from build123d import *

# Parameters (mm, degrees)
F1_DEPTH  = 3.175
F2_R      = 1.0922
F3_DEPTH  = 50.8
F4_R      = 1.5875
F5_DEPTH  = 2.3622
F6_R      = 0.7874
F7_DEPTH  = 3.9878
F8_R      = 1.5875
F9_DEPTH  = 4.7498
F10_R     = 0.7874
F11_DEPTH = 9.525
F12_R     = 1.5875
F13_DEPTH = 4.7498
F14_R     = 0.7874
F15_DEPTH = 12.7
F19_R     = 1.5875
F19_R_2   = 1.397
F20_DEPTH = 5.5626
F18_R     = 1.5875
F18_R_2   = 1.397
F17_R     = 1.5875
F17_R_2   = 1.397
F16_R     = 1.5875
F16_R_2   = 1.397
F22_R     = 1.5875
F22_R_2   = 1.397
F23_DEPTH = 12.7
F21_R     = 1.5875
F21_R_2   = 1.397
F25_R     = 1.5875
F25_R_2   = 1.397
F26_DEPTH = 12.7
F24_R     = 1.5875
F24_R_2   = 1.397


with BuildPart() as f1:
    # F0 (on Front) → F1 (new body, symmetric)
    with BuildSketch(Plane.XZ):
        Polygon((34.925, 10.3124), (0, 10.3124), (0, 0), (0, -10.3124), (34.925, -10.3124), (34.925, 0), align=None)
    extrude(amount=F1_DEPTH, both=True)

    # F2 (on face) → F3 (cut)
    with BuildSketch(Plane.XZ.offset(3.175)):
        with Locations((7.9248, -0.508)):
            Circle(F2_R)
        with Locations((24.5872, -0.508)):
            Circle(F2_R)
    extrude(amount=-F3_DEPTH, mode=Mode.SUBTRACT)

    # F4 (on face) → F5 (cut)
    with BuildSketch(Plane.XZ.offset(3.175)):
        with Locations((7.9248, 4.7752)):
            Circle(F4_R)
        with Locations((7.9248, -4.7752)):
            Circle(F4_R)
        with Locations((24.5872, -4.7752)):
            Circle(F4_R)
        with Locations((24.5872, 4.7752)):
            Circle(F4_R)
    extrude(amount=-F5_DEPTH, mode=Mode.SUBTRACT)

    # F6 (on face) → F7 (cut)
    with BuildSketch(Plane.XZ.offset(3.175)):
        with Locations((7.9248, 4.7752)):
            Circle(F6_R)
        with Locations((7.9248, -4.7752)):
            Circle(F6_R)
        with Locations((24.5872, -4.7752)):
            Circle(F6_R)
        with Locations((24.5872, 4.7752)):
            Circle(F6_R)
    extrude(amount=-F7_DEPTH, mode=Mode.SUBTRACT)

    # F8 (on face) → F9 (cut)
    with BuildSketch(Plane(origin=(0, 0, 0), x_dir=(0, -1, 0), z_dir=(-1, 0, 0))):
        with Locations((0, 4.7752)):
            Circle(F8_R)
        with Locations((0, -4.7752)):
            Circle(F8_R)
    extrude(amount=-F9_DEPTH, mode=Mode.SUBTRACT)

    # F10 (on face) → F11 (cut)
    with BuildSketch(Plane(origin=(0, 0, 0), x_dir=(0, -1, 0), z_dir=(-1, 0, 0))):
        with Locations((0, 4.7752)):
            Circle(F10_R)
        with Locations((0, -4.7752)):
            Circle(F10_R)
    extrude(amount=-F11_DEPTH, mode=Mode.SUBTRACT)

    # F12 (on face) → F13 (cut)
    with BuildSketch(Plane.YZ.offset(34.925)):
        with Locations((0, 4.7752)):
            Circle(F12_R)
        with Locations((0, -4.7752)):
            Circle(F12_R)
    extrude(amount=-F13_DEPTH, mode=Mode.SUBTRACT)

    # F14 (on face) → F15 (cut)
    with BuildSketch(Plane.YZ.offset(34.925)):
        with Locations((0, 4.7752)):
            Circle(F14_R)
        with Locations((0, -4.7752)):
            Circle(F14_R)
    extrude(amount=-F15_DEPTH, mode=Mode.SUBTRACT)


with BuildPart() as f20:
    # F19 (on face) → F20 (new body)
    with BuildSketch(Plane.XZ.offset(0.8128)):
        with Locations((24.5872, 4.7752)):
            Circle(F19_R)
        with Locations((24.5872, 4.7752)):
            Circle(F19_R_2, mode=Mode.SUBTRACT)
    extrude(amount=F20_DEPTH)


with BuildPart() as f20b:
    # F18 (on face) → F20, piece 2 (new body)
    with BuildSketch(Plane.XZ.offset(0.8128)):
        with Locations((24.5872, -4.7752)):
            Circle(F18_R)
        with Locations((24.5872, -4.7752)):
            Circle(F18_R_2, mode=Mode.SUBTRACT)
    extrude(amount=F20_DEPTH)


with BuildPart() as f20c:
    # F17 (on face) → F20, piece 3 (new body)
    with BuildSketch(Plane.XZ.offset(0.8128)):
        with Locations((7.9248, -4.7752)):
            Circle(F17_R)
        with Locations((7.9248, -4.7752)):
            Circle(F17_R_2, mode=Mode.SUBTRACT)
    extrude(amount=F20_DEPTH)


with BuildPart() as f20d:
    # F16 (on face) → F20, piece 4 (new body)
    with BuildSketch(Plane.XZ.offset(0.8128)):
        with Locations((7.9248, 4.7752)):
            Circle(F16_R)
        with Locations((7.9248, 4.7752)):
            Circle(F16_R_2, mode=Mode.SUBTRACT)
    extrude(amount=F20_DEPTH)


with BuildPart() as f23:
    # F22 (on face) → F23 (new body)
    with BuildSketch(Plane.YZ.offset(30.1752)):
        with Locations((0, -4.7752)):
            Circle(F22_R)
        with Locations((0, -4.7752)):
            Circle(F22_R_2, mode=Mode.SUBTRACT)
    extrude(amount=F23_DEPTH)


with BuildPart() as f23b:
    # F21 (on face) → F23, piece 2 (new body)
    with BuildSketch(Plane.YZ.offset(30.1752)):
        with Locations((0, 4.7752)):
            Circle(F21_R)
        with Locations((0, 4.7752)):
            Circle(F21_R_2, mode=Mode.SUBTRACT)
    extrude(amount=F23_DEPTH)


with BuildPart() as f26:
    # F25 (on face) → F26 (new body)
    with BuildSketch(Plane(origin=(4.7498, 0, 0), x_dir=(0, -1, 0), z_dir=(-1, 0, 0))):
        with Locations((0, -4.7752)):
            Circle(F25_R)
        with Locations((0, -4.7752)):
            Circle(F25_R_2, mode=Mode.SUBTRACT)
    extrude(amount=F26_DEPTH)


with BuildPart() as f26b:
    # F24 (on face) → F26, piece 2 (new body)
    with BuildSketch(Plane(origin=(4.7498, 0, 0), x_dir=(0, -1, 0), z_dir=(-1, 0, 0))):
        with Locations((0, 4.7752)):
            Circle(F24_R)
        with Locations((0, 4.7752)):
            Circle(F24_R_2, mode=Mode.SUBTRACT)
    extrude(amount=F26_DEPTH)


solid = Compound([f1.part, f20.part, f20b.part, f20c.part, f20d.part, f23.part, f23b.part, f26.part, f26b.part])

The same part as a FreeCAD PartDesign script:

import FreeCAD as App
import Part
import Sketcher
from FreeCAD import Vector
Q = App.Units.Quantity


def add_polygon(sketch, points):
    """Adds a closed chain of lines whose ends are joined by coincident constraints."""
    first, n = sketch.GeometryCount, len(points)
    for a, b in zip(points, points[1:] + points[:1]):
        sketch.addGeometry(Part.LineSegment(App.Vector(*a, 0), App.Vector(*b, 0)), False)
    for i in range(n):
        sketch.addConstraint(Sketcher.Constraint("Coincident", first + i, 2, first + (i + 1) % n, 1))

doc = App.newDocument("Part")
body = doc.addObject("PartDesign::Body", "Body")

sketch1 = body.newObject("Sketcher::SketchObject", "Sketch")
sketch1.AttachmentSupport = (doc.getObject("XZ_Plane"), [""])
sketch1.MapMode = "FlatFace"
add_polygon(sketch1, [(34.925, 10.3124), (0, 10.3124), (0, -10.3124), (34.925, -10.3124)])
sketch1.addConstraint([
    Sketcher.Constraint("Horizontal", 0),
    Sketcher.Constraint("Vertical", 1),
    Sketcher.Constraint("Horizontal", 2),
    Sketcher.Constraint("Vertical", 3),
    Sketcher.Constraint("Symmetric", 0, 2, 1, 2, -1, 1),
    Sketcher.Constraint("DistanceX", 0, 2, 0, 1, Q("1.375 in")),
    Sketcher.Constraint("DistanceY", 1, 2, 1, 1, Q("0.812 in")),
])
pad1 = body.newObject("PartDesign::Pad", "Pad")
pad1.Profile = sketch1
pad1.Length = Q("0.25 in")
pad1.Midplane = True

sketch2 = body.newObject("Sketcher::SketchObject", "Sketch001")
sketch2.AttachmentSupport = (doc.getObject("XZ_Plane"), [""])
sketch2.MapMode = "FlatFace"
sketch2.AttachmentOffset = App.Placement(Vector(0, 0, 0.125 * 25.4), App.Rotation())
sketch2.addGeometry([
    Part.Circle(Vector(7.9248, -0.508, 0), Vector(0, 0, 1), 1.0922),
    Part.Circle(Vector(24.5872, -0.508, 0), Vector(0, 0, 1), 1.0922),
], False)
sketch2.addConstraint([
    Sketcher.Constraint("Equal", 0, 1),
    Sketcher.Constraint("Horizontal", 0, 3, 1, 3),
    Sketcher.Constraint("Diameter", 0, Q("0.086 in")),
    Sketcher.Constraint("DistanceY", 0, 3, -1, 1, Q("0.02 in")),
    Sketcher.Constraint("DistanceX", -1, 1, 0, 3, Q("0.312 in")),
    Sketcher.Constraint("DistanceX", -1, 1, 1, 3, Q("0.968 in")),
])
pocket1 = body.newObject("PartDesign::Pocket", "Pocket")
pocket1.Profile = sketch2
pocket1.Length = Q("2 in")

sketch3 = body.newObject("Sketcher::SketchObject", "Sketch002")
sketch3.AttachmentSupport = (doc.getObject("XZ_Plane"), [""])
sketch3.MapMode = "FlatFace"
sketch3.AttachmentOffset = App.Placement(Vector(0, 0, 0.125 * 25.4), App.Rotation())
sketch3.addGeometry([
    Part.Circle(Vector(7.9248, 4.7752, 0), Vector(0, 0, 1), 1.5875),
    Part.Circle(Vector(7.9248, -4.7752, 0), Vector(0, 0, 1), 1.5875),
    Part.Circle(Vector(24.5872, -4.7752, 0), Vector(0, 0, 1), 1.5875),
    Part.Circle(Vector(24.5872, 4.7752, 0), Vector(0, 0, 1), 1.5875),
], False)
sketch3.addConstraint([
    Sketcher.Constraint("Equal", 0, 1),
    Sketcher.Constraint("Equal", 1, 2),
    Sketcher.Constraint("Equal", 2, 3),
    Sketcher.Constraint("Symmetric", 0, 3, 1, 3, -1),
    Sketcher.Constraint("Symmetric", 2, 3, 3, 3, -1),
    Sketcher.Constraint("Horizontal", 1, 3, 2, 3),
    Sketcher.Constraint("Diameter", 0, Q("0.125 in")),
    Sketcher.Constraint("DistanceX", -1, 1, 0, 3, Q("0.312 in")),
    Sketcher.Constraint("DistanceY", -1, 1, 0, 3, Q("0.188 in")),
    Sketcher.Constraint("DistanceX", -1, 1, 2, 3, Q("0.968 in")),
])
pocket2 = body.newObject("PartDesign::Pocket", "Pocket001")
pocket2.Profile = sketch3
pocket2.Length = Q("0.093 in")

sketch4 = body.newObject("Sketcher::SketchObject", "Sketch003")
sketch4.AttachmentSupport = (doc.getObject("XZ_Plane"), [""])
sketch4.MapMode = "FlatFace"
sketch4.AttachmentOffset = App.Placement(Vector(0, 0, 0.125 * 25.4), App.Rotation())
sketch4.addGeometry([
    Part.Circle(Vector(7.9248, 4.7752, 0), Vector(0, 0, 1), 0.7874),
    Part.Circle(Vector(7.9248, -4.7752, 0), Vector(0, 0, 1), 0.7874),
    Part.Circle(Vector(24.5872, -4.7752, 0), Vector(0, 0, 1), 0.7874),
    Part.Circle(Vector(24.5872, 4.7752, 0), Vector(0, 0, 1), 0.7874),
], False)
sketch4.addConstraint([
    Sketcher.Constraint("Equal", 0, 1),
    Sketcher.Constraint("Equal", 1, 2),
    Sketcher.Constraint("Equal", 2, 3),
    Sketcher.Constraint("Symmetric", 0, 3, 1, 3, -1),
    Sketcher.Constraint("Symmetric", 2, 3, 3, 3, -1),
    Sketcher.Constraint("Horizontal", 1, 3, 2, 3),
    Sketcher.Constraint("Diameter", 0, Q("0.062 in")),
    Sketcher.Constraint("DistanceX", -1, 1, 0, 3, Q("0.312 in")),
    Sketcher.Constraint("DistanceY", -1, 1, 0, 3, Q("0.188 in")),
    Sketcher.Constraint("DistanceX", -1, 1, 2, 3, Q("0.968 in")),
])
pocket3 = body.newObject("PartDesign::Pocket", "Pocket002")
pocket3.Profile = sketch4
pocket3.Length = Q("0.157 in")

sketch5 = body.newObject("Sketcher::SketchObject", "Sketch004")
sketch5.AttachmentSupport = (doc.getObject("YZ_Plane"), [""])
sketch5.MapMode = "FlatFace"
sketch5.addGeometry([
    Part.Circle(Vector(0, 4.7752, 0), Vector(0, 0, 1), 1.5875),
    Part.Circle(Vector(0, -4.7752, 0), Vector(0, 0, 1), 1.5875),
], False)
sketch5.addConstraint([
    Sketcher.Constraint("Equal", 0, 1),
    Sketcher.Constraint("Symmetric", 0, 3, 1, 3, -1, 1),
    Sketcher.Constraint("PointOnObject", 0, 3, -2),
    Sketcher.Constraint("Diameter", 0, Q("0.125 in")),
    Sketcher.Constraint("DistanceY", -1, 1, 0, 3, Q("0.188 in")),
])
pocket4 = body.newObject("PartDesign::Pocket", "Pocket003")
pocket4.Profile = sketch5
pocket4.Length = Q("0.187 in")
pocket4.Reversed = True

sketch6 = body.newObject("Sketcher::SketchObject", "Sketch005")
sketch6.AttachmentSupport = (doc.getObject("YZ_Plane"), [""])
sketch6.MapMode = "FlatFace"
sketch6.addGeometry([
    Part.Circle(Vector(0, 4.7752, 0), Vector(0, 0, 1), 0.7874),
    Part.Circle(Vector(0, -4.7752, 0), Vector(0, 0, 1), 0.7874),
], False)
sketch6.addConstraint([
    Sketcher.Constraint("Equal", 0, 1),
    Sketcher.Constraint("Symmetric", 0, 3, 1, 3, -1, 1),
    Sketcher.Constraint("PointOnObject", 0, 3, -2),
    Sketcher.Constraint("Diameter", 0, Q("0.062 in")),
    Sketcher.Constraint("DistanceY", -1, 1, 0, 3, Q("0.188 in")),
])
pocket5 = body.newObject("PartDesign::Pocket", "Pocket004")
pocket5.Profile = sketch6
pocket5.Length = Q("0.375 in")
pocket5.Reversed = True

sketch7 = body.newObject("Sketcher::SketchObject", "Sketch006")
sketch7.AttachmentSupport = (doc.getObject("YZ_Plane"), [""])
sketch7.MapMode = "FlatFace"
sketch7.AttachmentOffset = App.Placement(Vector(0, 0, 1.375 * 25.4), App.Rotation())
sketch7.addGeometry([
    Part.Circle(Vector(0, 4.7752, 0), Vector(0, 0, 1), 1.5875),
    Part.Circle(Vector(0, -4.7752, 0), Vector(0, 0, 1), 1.5875),
], False)
sketch7.addConstraint([
    Sketcher.Constraint("Equal", 0, 1),
    Sketcher.Constraint("Symmetric", 0, 3, 1, 3, -1, 1),
    Sketcher.Constraint("PointOnObject", 0, 3, -2),
    Sketcher.Constraint("Diameter", 0, Q("0.125 in")),
    Sketcher.Constraint("DistanceY", -1, 1, 0, 3, Q("0.188 in")),
])
pocket6 = body.newObject("PartDesign::Pocket", "Pocket005")
pocket6.Profile = sketch7
pocket6.Length = Q("0.187 in")

sketch8 = body.newObject("Sketcher::SketchObject", "Sketch007")
sketch8.AttachmentSupport = (doc.getObject("YZ_Plane"), [""])
sketch8.MapMode = "FlatFace"
sketch8.AttachmentOffset = App.Placement(Vector(0, 0, 1.375 * 25.4), App.Rotation())
sketch8.addGeometry([
    Part.Circle(Vector(0, 4.7752, 0), Vector(0, 0, 1), 0.7874),
    Part.Circle(Vector(0, -4.7752, 0), Vector(0, 0, 1), 0.7874),
], False)
sketch8.addConstraint([
    Sketcher.Constraint("Equal", 0, 1),
    Sketcher.Constraint("Symmetric", 0, 3, 1, 3, -1, 1),
    Sketcher.Constraint("PointOnObject", 0, 3, -2),
    Sketcher.Constraint("Diameter", 0, Q("0.062 in")),
    Sketcher.Constraint("DistanceY", -1, 1, 0, 3, Q("0.188 in")),
])
pocket7 = body.newObject("PartDesign::Pocket", "Pocket006")
pocket7.Profile = sketch8
pocket7.Length = Q("0.5 in")
body2 = doc.addObject("PartDesign::Body", "Body001")

sketch9 = body2.newObject("Sketcher::SketchObject", "Sketch008")
sketch9.AttachmentSupport = (doc.getObject("XZ_Plane001"), [""])
sketch9.MapMode = "FlatFace"
sketch9.AttachmentOffset = App.Placement(Vector(0, 0, 0.032 * 25.4), App.Rotation())
sketch9.addGeometry([
    Part.Circle(Vector(24.5872, 4.7752, 0), Vector(0, 0, 1), 1.5875),
    Part.Circle(Vector(24.5872, 4.7752, 0), Vector(0, 0, 1), 1.397),
], False)
sketch9.addConstraint([
    Sketcher.Constraint("Coincident", 1, 3, 0, 3),
    Sketcher.Constraint("Diameter", 1, Q("0.11 in")),
    Sketcher.Constraint("Diameter", 0, Q("0.125 in")),
    Sketcher.Constraint("DistanceX", -1, 1, 0, 3, Q("0.968 in")),
    Sketcher.Constraint("DistanceY", -1, 1, 0, 3, Q("0.188 in")),
])
pad2 = body2.newObject("PartDesign::Pad", "Pad001")
pad2.Profile = sketch9
pad2.Length = Q("0.219 in")
body3 = doc.addObject("PartDesign::Body", "Body002")

sketch10 = body3.newObject("Sketcher::SketchObject", "Sketch009")
sketch10.AttachmentSupport = (doc.getObject("XZ_Plane002"), [""])
sketch10.MapMode = "FlatFace"
sketch10.AttachmentOffset = App.Placement(Vector(0, 0, 0.032 * 25.4), App.Rotation())
sketch10.addGeometry([
    Part.Circle(Vector(24.5872, -4.7752, 0), Vector(0, 0, 1), 1.5875),
    Part.Circle(Vector(24.5872, -4.7752, 0), Vector(0, 0, 1), 1.397),
], False)
sketch10.addConstraint([
    Sketcher.Constraint("Coincident", 1, 3, 0, 3),
    Sketcher.Constraint("Diameter", 1, Q("0.11 in")),
    Sketcher.Constraint("Diameter", 0, Q("0.125 in")),
    Sketcher.Constraint("DistanceX", -1, 1, 0, 3, Q("0.968 in")),
    Sketcher.Constraint("DistanceY", 0, 3, -1, 1, Q("0.188 in")),
])
pad3 = body3.newObject("PartDesign::Pad", "Pad002")
pad3.Profile = sketch10
pad3.Length = Q("0.219 in")
body4 = doc.addObject("PartDesign::Body", "Body003")

sketch11 = body4.newObject("Sketcher::SketchObject", "Sketch010")
sketch11.AttachmentSupport = (doc.getObject("XZ_Plane003"), [""])
sketch11.MapMode = "FlatFace"
sketch11.AttachmentOffset = App.Placement(Vector(0, 0, 0.032 * 25.4), App.Rotation())
sketch11.addGeometry([
    Part.Circle(Vector(7.9248, -4.7752, 0), Vector(0, 0, 1), 1.5875),
    Part.Circle(Vector(7.9248, -4.7752, 0), Vector(0, 0, 1), 1.397),
], False)
sketch11.addConstraint([
    Sketcher.Constraint("Coincident", 1, 3, 0, 3),
    Sketcher.Constraint("Diameter", 1, Q("0.11 in")),
    Sketcher.Constraint("Diameter", 0, Q("0.125 in")),
    Sketcher.Constraint("DistanceX", -1, 1, 0, 3, Q("0.312 in")),
    Sketcher.Constraint("DistanceY", 0, 3, -1, 1, Q("0.188 in")),
])
pad4 = body4.newObject("PartDesign::Pad", "Pad003")
pad4.Profile = sketch11
pad4.Length = Q("0.219 in")
body5 = doc.addObject("PartDesign::Body", "Body004")

sketch12 = body5.newObject("Sketcher::SketchObject", "Sketch011")
sketch12.AttachmentSupport = (doc.getObject("XZ_Plane004"), [""])
sketch12.MapMode = "FlatFace"
sketch12.AttachmentOffset = App.Placement(Vector(0, 0, 0.032 * 25.4), App.Rotation())
sketch12.addGeometry([
    Part.Circle(Vector(7.9248, 4.7752, 0), Vector(0, 0, 1), 1.5875),
    Part.Circle(Vector(7.9248, 4.7752, 0), Vector(0, 0, 1), 1.397),
], False)
sketch12.addConstraint([
    Sketcher.Constraint("Coincident", 1, 3, 0, 3),
    Sketcher.Constraint("Diameter", 1, Q("0.11 in")),
    Sketcher.Constraint("Diameter", 0, Q("0.125 in")),
    Sketcher.Constraint("DistanceX", -1, 1, 0, 3, Q("0.312 in")),
    Sketcher.Constraint("DistanceY", -1, 1, 0, 3, Q("0.188 in")),
])
pad5 = body5.newObject("PartDesign::Pad", "Pad004")
pad5.Profile = sketch12
pad5.Length = Q("0.219 in")
body6 = doc.addObject("PartDesign::Body", "Body005")

sketch13 = body6.newObject("Sketcher::SketchObject", "Sketch012")
sketch13.AttachmentSupport = (doc.getObject("YZ_Plane005"), [""])
sketch13.MapMode = "FlatFace"
sketch13.AttachmentOffset = App.Placement(Vector(0, 0, 1.188 * 25.4), App.Rotation())
sketch13.addGeometry([
    Part.Circle(Vector(0, -4.7752, 0), Vector(0, 0, 1), 1.5875),
    Part.Circle(Vector(0, -4.7752, 0), Vector(0, 0, 1), 1.397),
], False)
sketch13.addConstraint([
    Sketcher.Constraint("Coincident", 1, 3, 0, 3),
    Sketcher.Constraint("PointOnObject", 0, 3, -2),
    Sketcher.Constraint("Diameter", 1, Q("0.11 in")),
    Sketcher.Constraint("Diameter", 0, Q("0.125 in")),
    Sketcher.Constraint("DistanceY", 0, 3, -1, 1, Q("0.188 in")),
])
pad6 = body6.newObject("PartDesign::Pad", "Pad005")
pad6.Profile = sketch13
pad6.Length = Q("0.5 in")
body7 = doc.addObject("PartDesign::Body", "Body006")

sketch14 = body7.newObject("Sketcher::SketchObject", "Sketch013")
sketch14.AttachmentSupport = (doc.getObject("YZ_Plane006"), [""])
sketch14.MapMode = "FlatFace"
sketch14.AttachmentOffset = App.Placement(Vector(0, 0, 1.188 * 25.4), App.Rotation())
sketch14.addGeometry([
    Part.Circle(Vector(0, 4.7752, 0), Vector(0, 0, 1), 1.5875),
    Part.Circle(Vector(0, 4.7752, 0), Vector(0, 0, 1), 1.397),
], False)
sketch14.addConstraint([
    Sketcher.Constraint("Coincident", 1, 3, 0, 3),
    Sketcher.Constraint("PointOnObject", 0, 3, -2),
    Sketcher.Constraint("Diameter", 1, Q("0.11 in")),
    Sketcher.Constraint("Diameter", 0, Q("0.125 in")),
    Sketcher.Constraint("DistanceY", -1, 1, 0, 3, Q("0.188 in")),
])
pad7 = body7.newObject("PartDesign::Pad", "Pad006")
pad7.Profile = sketch14
pad7.Length = Q("0.5 in")
body8 = doc.addObject("PartDesign::Body", "Body007")

sketch15 = body8.newObject("Sketcher::SketchObject", "Sketch014")
sketch15.AttachmentSupport = (doc.getObject("YZ_Plane007"), [""])
sketch15.MapMode = "FlatFace"
sketch15.AttachmentOffset = App.Placement(Vector(0, 0, 0.187 * 25.4), App.Rotation())
sketch15.addGeometry([
    Part.Circle(Vector(0, -4.7752, 0), Vector(0, 0, 1), 1.5875),
    Part.Circle(Vector(0, -4.7752, 0), Vector(0, 0, 1), 1.397),
], False)
sketch15.addConstraint([
    Sketcher.Constraint("Coincident", 1, 3, 0, 3),
    Sketcher.Constraint("PointOnObject", 0, 3, -2),
    Sketcher.Constraint("Diameter", 1, Q("0.11 in")),
    Sketcher.Constraint("Diameter", 0, Q("0.125 in")),
    Sketcher.Constraint("DistanceY", 0, 3, -1, 1, Q("0.188 in")),
])
pad8 = body8.newObject("PartDesign::Pad", "Pad007")
pad8.Profile = sketch15
pad8.Length = Q("0.5 in")
pad8.Reversed = True
body9 = doc.addObject("PartDesign::Body", "Body008")

sketch16 = body9.newObject("Sketcher::SketchObject", "Sketch015")
sketch16.AttachmentSupport = (doc.getObject("YZ_Plane008"), [""])
sketch16.MapMode = "FlatFace"
sketch16.AttachmentOffset = App.Placement(Vector(0, 0, 0.187 * 25.4), App.Rotation())
sketch16.addGeometry([
    Part.Circle(Vector(0, 4.7752, 0), Vector(0, 0, 1), 1.5875),
    Part.Circle(Vector(0, 4.7752, 0), Vector(0, 0, 1), 1.397),
], False)
sketch16.addConstraint([
    Sketcher.Constraint("Coincident", 1, 3, 0, 3),
    Sketcher.Constraint("PointOnObject", 0, 3, -2),
    Sketcher.Constraint("Diameter", 1, Q("0.11 in")),
    Sketcher.Constraint("Diameter", 0, Q("0.125 in")),
    Sketcher.Constraint("DistanceY", -1, 1, 0, 3, Q("0.188 in")),
])
pad9 = body9.newObject("PartDesign::Pad", "Pad008")
pad9.Profile = sketch16
pad9.Length = Q("0.5 in")
pad9.Reversed = True

doc.recompute()
